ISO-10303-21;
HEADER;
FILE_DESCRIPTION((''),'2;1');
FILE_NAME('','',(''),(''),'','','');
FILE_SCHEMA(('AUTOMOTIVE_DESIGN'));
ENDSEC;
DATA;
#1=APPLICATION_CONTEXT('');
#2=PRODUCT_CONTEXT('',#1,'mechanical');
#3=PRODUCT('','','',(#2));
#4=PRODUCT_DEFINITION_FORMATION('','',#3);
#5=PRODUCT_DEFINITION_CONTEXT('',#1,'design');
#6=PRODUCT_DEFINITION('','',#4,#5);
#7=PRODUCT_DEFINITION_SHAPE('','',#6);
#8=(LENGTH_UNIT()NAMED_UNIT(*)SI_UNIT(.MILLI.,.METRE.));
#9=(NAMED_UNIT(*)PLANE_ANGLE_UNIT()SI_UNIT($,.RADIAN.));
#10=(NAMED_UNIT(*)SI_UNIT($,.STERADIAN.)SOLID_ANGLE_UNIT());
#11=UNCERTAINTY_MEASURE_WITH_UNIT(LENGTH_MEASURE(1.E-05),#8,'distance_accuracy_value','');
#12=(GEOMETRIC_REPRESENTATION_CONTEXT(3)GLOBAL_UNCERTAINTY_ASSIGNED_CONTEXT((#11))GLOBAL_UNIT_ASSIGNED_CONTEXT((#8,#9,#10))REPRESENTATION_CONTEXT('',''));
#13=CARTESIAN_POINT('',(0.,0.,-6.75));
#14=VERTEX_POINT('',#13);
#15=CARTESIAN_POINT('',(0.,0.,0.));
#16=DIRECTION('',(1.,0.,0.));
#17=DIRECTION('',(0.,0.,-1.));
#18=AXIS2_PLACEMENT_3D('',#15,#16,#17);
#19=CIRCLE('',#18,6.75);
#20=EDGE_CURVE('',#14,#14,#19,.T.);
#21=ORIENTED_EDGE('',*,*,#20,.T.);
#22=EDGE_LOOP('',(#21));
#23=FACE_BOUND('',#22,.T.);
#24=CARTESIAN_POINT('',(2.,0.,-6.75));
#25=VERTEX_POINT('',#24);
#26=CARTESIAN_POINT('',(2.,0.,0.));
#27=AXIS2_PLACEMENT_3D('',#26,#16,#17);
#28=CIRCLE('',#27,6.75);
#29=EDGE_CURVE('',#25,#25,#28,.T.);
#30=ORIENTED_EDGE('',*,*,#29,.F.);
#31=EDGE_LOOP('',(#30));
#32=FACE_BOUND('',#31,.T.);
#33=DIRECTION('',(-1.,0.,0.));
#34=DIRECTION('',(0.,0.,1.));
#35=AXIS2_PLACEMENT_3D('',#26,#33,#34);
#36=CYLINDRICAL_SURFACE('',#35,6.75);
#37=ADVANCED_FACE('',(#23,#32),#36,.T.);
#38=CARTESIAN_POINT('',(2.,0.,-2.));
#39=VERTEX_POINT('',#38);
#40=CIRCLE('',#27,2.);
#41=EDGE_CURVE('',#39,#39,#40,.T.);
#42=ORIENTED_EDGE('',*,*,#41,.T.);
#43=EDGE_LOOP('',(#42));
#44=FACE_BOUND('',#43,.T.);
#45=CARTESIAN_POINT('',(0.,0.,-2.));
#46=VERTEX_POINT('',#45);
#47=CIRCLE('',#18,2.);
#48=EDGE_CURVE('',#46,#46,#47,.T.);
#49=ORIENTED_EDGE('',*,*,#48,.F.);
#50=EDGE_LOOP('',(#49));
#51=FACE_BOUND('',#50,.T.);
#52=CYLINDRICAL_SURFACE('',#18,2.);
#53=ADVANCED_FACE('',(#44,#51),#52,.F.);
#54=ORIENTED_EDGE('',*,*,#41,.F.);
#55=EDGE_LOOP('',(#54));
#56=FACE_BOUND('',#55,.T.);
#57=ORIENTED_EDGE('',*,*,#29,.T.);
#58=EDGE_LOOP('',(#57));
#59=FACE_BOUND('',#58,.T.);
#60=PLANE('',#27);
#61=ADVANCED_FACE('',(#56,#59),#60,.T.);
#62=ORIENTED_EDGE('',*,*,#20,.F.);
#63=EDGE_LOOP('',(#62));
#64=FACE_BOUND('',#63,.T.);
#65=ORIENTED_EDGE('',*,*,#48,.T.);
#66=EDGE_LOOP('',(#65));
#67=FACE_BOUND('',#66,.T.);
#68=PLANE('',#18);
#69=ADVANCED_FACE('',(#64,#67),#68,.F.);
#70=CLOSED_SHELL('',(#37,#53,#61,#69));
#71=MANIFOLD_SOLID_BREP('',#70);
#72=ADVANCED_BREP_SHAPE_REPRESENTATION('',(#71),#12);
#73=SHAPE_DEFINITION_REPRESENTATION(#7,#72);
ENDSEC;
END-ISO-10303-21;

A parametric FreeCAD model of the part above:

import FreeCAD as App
import Part
import Sketcher

V = App.Vector

doc = App.newDocument("Part")
body = doc.addObject("PartDesign::Body", "Body")

sketch1 = body.newObject("Sketcher::SketchObject", "Sketch")
sketch1.AttachmentSupport = (doc.getObject("YZ_Plane"), [""])
sketch1.MapMode = "FlatFace"
sketch1.addGeometry(Part.Circle(V(0, 0, 0), V(0, 0, 1), 7), False)
sketch1.addConstraint([
    Sketcher.Constraint("Coincident", 0, 3, -1, 1),
    Sketcher.Constraint("Diameter", 0, 13.5),
])
pad1 = body.newObject("PartDesign::Pad", "Pad")
pad1.Profile = sketch1
pad1.Length = 2

sketch2 = body.newObject("Sketcher::SketchObject", "Sketch001")
sketch2.AttachmentSupport = (doc.getObject("YZ_Plane"), [""])
sketch2.MapMode = "FlatFace"
sketch2.AttachmentOffset = App.Placement(V(0, 0, 2), App.Rotation())
sketch2.addGeometry(Part.Circle(V(0, 0, 0), V(0, 0, 1), 2), False)
sketch2.addConstraint([
    Sketcher.Constraint("Coincident", 0, 3, -1, 1),
    Sketcher.Constraint("Diameter", 0, 4.0),
])
pocket1 = body.newObject("PartDesign::Pocket", "Pocket")
pocket1.Profile = sketch2
pocket1.Type = "ThroughAll"

doc.recompute()
